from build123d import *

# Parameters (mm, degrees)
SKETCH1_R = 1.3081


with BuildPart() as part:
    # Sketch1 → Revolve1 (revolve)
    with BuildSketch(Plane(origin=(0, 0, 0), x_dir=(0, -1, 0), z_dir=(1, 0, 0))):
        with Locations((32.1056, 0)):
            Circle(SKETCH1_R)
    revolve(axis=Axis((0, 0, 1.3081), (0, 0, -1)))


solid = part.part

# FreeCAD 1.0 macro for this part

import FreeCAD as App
import Part
import Sketcher
Q = App.Units.Quantity

doc = App.newDocument("Part")
body = doc.addObject("PartDesign::Body", "Body")

# Sketch on YZ plane
sketch1 = body.newObject("Sketcher::SketchObject", "Sketch")
sketch1.AttachmentSupport = (doc.getObject("YZ_Plane"), [""])
sketch1.MapMode = "FlatFace"
sketch1.addGeometry(Part.Circle(App.Vector(-32.1056, 0, 0), App.Vector(0, 0, 1), 1.3081), False)
sketch1.addConstraint(Sketcher.Constraint("PointOnObject", 0, 3, -1))
sketch1.addConstraint(Sketcher.Constraint("Diameter", 0, Q("0.103 in")))
sketch1.addConstraint(Sketcher.Constraint("DistanceX", 0, 3, -1, 1, Q("1.264 in")))
revolution = body.newObject("PartDesign::Revolution", "Revolution")
revolution.Profile = sketch1
revolution.ReferenceAxis = (sketch1, ["V_Axis"])
revolution.Angle = 360

doc.recompute()
